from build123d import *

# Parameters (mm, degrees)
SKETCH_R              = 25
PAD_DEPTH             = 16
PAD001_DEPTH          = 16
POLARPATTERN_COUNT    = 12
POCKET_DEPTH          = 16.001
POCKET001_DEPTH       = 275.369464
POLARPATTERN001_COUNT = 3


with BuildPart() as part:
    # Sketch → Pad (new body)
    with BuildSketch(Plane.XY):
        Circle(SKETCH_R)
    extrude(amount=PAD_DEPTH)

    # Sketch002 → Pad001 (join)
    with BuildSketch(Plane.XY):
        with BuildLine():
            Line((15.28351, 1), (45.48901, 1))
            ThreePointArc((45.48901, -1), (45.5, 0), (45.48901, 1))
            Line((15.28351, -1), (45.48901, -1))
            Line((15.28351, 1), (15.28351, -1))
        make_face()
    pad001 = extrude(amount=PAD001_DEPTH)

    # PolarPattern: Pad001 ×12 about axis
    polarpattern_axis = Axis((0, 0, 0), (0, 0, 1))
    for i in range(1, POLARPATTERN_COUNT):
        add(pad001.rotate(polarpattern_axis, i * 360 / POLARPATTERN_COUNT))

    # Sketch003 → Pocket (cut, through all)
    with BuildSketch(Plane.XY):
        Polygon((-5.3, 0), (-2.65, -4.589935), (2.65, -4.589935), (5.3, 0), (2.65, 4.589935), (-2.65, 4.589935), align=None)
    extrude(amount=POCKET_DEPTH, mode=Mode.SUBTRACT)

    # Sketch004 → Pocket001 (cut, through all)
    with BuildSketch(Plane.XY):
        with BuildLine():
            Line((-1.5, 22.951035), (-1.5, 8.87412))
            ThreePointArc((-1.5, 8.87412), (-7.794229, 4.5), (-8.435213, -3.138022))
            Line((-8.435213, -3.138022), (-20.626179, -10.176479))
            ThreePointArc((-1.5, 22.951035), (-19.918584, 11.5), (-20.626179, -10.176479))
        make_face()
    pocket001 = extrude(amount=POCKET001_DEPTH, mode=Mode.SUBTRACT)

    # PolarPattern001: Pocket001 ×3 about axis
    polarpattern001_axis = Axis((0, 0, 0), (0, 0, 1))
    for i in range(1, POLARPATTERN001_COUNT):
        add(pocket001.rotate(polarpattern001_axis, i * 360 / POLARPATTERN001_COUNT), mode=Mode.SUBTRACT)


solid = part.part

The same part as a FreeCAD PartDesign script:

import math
import FreeCAD as App
import Part
import Sketcher
from FreeCAD import Vector
Q = App.Units.Quantity

doc = App.newDocument("Part")
body = doc.addObject("PartDesign::Body", "Body")

sketch1 = body.newObject("Sketcher::SketchObject", "Sketch")
sketch1.AttachmentSupport = (doc.getObject("XY_Plane"), [""])
sketch1.MapMode = "FlatFace"
sketch1.addGeometry(Part.Circle(Vector(0, 0, 0), Vector(0, 0, 1), 25), False)
sketch1.addConstraint([
    Sketcher.Constraint("Coincident", 0, 3, -1, 1),
    Sketcher.Constraint("Diameter", 0, Q("50 mm")),
])
pad1 = body.newObject("PartDesign::Pad", "Pad")
pad1.Profile = sketch1
pad1.Length = 16

sketch2 = body.newObject("Sketcher::SketchObject", "Sketch001")
sketch2.AttachmentSupport = (doc.getObject("XY_Plane"), [""])
sketch2.MapMode = "FlatFace"
sketch2.addGeometry([
    Part.LineSegment(Vector(45.5, 1, 0), Vector(15.3, 1, 0)),
    Part.LineSegment(Vector(15.3, 1, 0), Vector(15.3, -1, 0)),
    Part.LineSegment(Vector(15.3, -1, 0), Vector(45.5, -1, 0)),
    Part.ArcOfCircle(Part.Circle(Vector(0, 0, 0), Vector(0, 0, 1), 45.5), math.radians(-1.26), math.radians(1.26)),
], False)
sketch2.addConstraint([
    Sketcher.Constraint("Coincident", 0, 2, 1, 1),
    Sketcher.Constraint("Coincident", 1, 2, 2, 1),
    Sketcher.Constraint("Coincident", 2, 2, 3, 1),
    Sketcher.Constraint("Coincident", 3, 2, 0, 1),
    Sketcher.Constraint("Horizontal", 0),
    Sketcher.Constraint("Vertical", 1),
    Sketcher.Constraint("Horizontal", 2),
    Sketcher.Constraint("Symmetric", 2, 2, 3, 2, -1),
    Sketcher.Constraint("DistanceY", 1, 2, 1, 1, Q("2 mm")),
    Sketcher.Constraint("Radius", 3, Q("45.5014 mm")),
    Sketcher.Constraint("DistanceX", 0, 2, 0, 1, Q("30.2055 mm")),
    Sketcher.Constraint("DistanceX", 3, 3, -1, 1, Q("0.0014 mm")),
])
pad2 = body.newObject("PartDesign::Pad", "Pad001")
pad2.Profile = sketch2
pad2.Length = 16
doc.recompute()

polarpattern = body.newObject("PartDesign::PolarPattern", "PolarPattern")
polarpattern.Originals = [pad2]
polarpattern.Axis = (doc.getObject("Z_Axis"), [""])
polarpattern.Angle = 360
polarpattern.Occurrences = 12
body.Tip = polarpattern

sketch3 = body.newObject("Sketcher::SketchObject", "Sketch002")
sketch3.AttachmentSupport = (doc.getObject("XY_Plane"), [""])
sketch3.MapMode = "FlatFace"
sketch3.addGeometry([
    Part.LineSegment(Vector(-5, 0, 0), Vector(-3, -5, 0)),
    Part.LineSegment(Vector(-3, -5, 0), Vector(3, -5, 0)),
    Part.LineSegment(Vector(3, -5, 0), Vector(5, 0, 0)),
    Part.LineSegment(Vector(5, 0, 0), Vector(3, 5, 0)),
    Part.LineSegment(Vector(3, 5, 0), Vector(-3, 5, 0)),
    Part.LineSegment(Vector(-3, 5, 0), Vector(-5, 0, 0)),
], False)
sketch3.addConstraint([
    Sketcher.Constraint("Coincident", 0, 2, 1, 1),
    Sketcher.Constraint("Coincident", 1, 2, 2, 1),
    Sketcher.Constraint("Coincident", 2, 2, 3, 1),
    Sketcher.Constraint("Coincident", 3, 2, 4, 1),
    Sketcher.Constraint("Coincident", 4, 2, 5, 1),
    Sketcher.Constraint("Coincident", 5, 2, 0, 1),
    Sketcher.Constraint("Horizontal", 1),
    Sketcher.Constraint("Horizontal", 4),
    Sketcher.Constraint("Symmetric", 0, 2, 3, 2, -1, 1),
    Sketcher.Constraint("Symmetric", 2, 2, 5, 2, -1, 1),
    Sketcher.Constraint("PointOnObject", 2, 2, -1),
    Sketcher.Constraint("Parallel", 2, 5),
    Sketcher.Constraint("Vertical", 1, 2, 3, 2),
    Sketcher.Constraint("Angle", 0, Q("-60.000002 deg")),
    Sketcher.Constraint("DistanceX", 1, 1, 1, 2, Q("5.3 mm")),
    Sketcher.Constraint("Distance", 0, Q("5.3 mm")),
])
pocket1 = body.newObject("PartDesign::Pocket", "Pocket")
pocket1.Profile = sketch3
pocket1.Type = "ThroughAll"
pocket1.Reversed = True

sketch4 = body.newObject("Sketcher::SketchObject", "Sketch003")
sketch4.AttachmentSupport = (doc.getObject("XY_Plane"), [""])
sketch4.MapMode = "FlatFace"
sketch4.addGeometry([
    Part.LineSegment(Vector(-2, 9, 0), Vector(-2, 23, 0)),
    Part.ArcOfCircle(Part.Circle(Vector(0, 0, 0), Vector(0, 0, 1), 23), math.radians(94), math.radians(206)),
    Part.LineSegment(Vector(-21, -10, 0), Vector(-8, -3, 0)),
    Part.ArcOfCircle(Part.Circle(Vector(0, 0, 0), Vector(0, 0, 1), 9), math.radians(100), math.radians(200)),
], False)
sketch4.addConstraint([
    Sketcher.Constraint("Coincident", 0, 2, 1, 1),
    Sketcher.Constraint("Coincident", 1, 2, 2, 1),
    Sketcher.Constraint("Coincident", 2, 2, 3, 2),
    Sketcher.Constraint("Coincident", 3, 1, 0, 1),
    Sketcher.Constraint("Vertical", 0),
    Sketcher.Constraint("Coincident", 1, 3, -1, 1),
    Sketcher.Constraint("Coincident", 3, 3, -1, 1),
    Sketcher.Constraint("Radius", 1, Q("23 mm")),
    Sketcher.Constraint("Radius", 3, Q("9 mm")),
    Sketcher.Constraint("Angle", 2, Q("29.999998 deg")),
    Sketcher.Constraint("DistanceX", 0, 2, -1, 1, Q("1.5 mm")),
    Sketcher.Constraint("DistanceY", 1, 2, 3, 1, Q("19.050599 mm")),
])
pocket2 = body.newObject("PartDesign::Pocket", "Pocket001")
pocket2.Profile = sketch4
pocket2.Type = "ThroughAll"
pocket2.Reversed = True
doc.recompute()

polarpattern2 = body.newObject("PartDesign::PolarPattern", "PolarPattern001")
polarpattern2.Originals = [pocket2]
polarpattern2.Axis = (doc.getObject("Z_Axis"), [""])
polarpattern2.Angle = 360
polarpattern2.Occurrences = 3
body.Tip = polarpattern2

doc.recompute()
